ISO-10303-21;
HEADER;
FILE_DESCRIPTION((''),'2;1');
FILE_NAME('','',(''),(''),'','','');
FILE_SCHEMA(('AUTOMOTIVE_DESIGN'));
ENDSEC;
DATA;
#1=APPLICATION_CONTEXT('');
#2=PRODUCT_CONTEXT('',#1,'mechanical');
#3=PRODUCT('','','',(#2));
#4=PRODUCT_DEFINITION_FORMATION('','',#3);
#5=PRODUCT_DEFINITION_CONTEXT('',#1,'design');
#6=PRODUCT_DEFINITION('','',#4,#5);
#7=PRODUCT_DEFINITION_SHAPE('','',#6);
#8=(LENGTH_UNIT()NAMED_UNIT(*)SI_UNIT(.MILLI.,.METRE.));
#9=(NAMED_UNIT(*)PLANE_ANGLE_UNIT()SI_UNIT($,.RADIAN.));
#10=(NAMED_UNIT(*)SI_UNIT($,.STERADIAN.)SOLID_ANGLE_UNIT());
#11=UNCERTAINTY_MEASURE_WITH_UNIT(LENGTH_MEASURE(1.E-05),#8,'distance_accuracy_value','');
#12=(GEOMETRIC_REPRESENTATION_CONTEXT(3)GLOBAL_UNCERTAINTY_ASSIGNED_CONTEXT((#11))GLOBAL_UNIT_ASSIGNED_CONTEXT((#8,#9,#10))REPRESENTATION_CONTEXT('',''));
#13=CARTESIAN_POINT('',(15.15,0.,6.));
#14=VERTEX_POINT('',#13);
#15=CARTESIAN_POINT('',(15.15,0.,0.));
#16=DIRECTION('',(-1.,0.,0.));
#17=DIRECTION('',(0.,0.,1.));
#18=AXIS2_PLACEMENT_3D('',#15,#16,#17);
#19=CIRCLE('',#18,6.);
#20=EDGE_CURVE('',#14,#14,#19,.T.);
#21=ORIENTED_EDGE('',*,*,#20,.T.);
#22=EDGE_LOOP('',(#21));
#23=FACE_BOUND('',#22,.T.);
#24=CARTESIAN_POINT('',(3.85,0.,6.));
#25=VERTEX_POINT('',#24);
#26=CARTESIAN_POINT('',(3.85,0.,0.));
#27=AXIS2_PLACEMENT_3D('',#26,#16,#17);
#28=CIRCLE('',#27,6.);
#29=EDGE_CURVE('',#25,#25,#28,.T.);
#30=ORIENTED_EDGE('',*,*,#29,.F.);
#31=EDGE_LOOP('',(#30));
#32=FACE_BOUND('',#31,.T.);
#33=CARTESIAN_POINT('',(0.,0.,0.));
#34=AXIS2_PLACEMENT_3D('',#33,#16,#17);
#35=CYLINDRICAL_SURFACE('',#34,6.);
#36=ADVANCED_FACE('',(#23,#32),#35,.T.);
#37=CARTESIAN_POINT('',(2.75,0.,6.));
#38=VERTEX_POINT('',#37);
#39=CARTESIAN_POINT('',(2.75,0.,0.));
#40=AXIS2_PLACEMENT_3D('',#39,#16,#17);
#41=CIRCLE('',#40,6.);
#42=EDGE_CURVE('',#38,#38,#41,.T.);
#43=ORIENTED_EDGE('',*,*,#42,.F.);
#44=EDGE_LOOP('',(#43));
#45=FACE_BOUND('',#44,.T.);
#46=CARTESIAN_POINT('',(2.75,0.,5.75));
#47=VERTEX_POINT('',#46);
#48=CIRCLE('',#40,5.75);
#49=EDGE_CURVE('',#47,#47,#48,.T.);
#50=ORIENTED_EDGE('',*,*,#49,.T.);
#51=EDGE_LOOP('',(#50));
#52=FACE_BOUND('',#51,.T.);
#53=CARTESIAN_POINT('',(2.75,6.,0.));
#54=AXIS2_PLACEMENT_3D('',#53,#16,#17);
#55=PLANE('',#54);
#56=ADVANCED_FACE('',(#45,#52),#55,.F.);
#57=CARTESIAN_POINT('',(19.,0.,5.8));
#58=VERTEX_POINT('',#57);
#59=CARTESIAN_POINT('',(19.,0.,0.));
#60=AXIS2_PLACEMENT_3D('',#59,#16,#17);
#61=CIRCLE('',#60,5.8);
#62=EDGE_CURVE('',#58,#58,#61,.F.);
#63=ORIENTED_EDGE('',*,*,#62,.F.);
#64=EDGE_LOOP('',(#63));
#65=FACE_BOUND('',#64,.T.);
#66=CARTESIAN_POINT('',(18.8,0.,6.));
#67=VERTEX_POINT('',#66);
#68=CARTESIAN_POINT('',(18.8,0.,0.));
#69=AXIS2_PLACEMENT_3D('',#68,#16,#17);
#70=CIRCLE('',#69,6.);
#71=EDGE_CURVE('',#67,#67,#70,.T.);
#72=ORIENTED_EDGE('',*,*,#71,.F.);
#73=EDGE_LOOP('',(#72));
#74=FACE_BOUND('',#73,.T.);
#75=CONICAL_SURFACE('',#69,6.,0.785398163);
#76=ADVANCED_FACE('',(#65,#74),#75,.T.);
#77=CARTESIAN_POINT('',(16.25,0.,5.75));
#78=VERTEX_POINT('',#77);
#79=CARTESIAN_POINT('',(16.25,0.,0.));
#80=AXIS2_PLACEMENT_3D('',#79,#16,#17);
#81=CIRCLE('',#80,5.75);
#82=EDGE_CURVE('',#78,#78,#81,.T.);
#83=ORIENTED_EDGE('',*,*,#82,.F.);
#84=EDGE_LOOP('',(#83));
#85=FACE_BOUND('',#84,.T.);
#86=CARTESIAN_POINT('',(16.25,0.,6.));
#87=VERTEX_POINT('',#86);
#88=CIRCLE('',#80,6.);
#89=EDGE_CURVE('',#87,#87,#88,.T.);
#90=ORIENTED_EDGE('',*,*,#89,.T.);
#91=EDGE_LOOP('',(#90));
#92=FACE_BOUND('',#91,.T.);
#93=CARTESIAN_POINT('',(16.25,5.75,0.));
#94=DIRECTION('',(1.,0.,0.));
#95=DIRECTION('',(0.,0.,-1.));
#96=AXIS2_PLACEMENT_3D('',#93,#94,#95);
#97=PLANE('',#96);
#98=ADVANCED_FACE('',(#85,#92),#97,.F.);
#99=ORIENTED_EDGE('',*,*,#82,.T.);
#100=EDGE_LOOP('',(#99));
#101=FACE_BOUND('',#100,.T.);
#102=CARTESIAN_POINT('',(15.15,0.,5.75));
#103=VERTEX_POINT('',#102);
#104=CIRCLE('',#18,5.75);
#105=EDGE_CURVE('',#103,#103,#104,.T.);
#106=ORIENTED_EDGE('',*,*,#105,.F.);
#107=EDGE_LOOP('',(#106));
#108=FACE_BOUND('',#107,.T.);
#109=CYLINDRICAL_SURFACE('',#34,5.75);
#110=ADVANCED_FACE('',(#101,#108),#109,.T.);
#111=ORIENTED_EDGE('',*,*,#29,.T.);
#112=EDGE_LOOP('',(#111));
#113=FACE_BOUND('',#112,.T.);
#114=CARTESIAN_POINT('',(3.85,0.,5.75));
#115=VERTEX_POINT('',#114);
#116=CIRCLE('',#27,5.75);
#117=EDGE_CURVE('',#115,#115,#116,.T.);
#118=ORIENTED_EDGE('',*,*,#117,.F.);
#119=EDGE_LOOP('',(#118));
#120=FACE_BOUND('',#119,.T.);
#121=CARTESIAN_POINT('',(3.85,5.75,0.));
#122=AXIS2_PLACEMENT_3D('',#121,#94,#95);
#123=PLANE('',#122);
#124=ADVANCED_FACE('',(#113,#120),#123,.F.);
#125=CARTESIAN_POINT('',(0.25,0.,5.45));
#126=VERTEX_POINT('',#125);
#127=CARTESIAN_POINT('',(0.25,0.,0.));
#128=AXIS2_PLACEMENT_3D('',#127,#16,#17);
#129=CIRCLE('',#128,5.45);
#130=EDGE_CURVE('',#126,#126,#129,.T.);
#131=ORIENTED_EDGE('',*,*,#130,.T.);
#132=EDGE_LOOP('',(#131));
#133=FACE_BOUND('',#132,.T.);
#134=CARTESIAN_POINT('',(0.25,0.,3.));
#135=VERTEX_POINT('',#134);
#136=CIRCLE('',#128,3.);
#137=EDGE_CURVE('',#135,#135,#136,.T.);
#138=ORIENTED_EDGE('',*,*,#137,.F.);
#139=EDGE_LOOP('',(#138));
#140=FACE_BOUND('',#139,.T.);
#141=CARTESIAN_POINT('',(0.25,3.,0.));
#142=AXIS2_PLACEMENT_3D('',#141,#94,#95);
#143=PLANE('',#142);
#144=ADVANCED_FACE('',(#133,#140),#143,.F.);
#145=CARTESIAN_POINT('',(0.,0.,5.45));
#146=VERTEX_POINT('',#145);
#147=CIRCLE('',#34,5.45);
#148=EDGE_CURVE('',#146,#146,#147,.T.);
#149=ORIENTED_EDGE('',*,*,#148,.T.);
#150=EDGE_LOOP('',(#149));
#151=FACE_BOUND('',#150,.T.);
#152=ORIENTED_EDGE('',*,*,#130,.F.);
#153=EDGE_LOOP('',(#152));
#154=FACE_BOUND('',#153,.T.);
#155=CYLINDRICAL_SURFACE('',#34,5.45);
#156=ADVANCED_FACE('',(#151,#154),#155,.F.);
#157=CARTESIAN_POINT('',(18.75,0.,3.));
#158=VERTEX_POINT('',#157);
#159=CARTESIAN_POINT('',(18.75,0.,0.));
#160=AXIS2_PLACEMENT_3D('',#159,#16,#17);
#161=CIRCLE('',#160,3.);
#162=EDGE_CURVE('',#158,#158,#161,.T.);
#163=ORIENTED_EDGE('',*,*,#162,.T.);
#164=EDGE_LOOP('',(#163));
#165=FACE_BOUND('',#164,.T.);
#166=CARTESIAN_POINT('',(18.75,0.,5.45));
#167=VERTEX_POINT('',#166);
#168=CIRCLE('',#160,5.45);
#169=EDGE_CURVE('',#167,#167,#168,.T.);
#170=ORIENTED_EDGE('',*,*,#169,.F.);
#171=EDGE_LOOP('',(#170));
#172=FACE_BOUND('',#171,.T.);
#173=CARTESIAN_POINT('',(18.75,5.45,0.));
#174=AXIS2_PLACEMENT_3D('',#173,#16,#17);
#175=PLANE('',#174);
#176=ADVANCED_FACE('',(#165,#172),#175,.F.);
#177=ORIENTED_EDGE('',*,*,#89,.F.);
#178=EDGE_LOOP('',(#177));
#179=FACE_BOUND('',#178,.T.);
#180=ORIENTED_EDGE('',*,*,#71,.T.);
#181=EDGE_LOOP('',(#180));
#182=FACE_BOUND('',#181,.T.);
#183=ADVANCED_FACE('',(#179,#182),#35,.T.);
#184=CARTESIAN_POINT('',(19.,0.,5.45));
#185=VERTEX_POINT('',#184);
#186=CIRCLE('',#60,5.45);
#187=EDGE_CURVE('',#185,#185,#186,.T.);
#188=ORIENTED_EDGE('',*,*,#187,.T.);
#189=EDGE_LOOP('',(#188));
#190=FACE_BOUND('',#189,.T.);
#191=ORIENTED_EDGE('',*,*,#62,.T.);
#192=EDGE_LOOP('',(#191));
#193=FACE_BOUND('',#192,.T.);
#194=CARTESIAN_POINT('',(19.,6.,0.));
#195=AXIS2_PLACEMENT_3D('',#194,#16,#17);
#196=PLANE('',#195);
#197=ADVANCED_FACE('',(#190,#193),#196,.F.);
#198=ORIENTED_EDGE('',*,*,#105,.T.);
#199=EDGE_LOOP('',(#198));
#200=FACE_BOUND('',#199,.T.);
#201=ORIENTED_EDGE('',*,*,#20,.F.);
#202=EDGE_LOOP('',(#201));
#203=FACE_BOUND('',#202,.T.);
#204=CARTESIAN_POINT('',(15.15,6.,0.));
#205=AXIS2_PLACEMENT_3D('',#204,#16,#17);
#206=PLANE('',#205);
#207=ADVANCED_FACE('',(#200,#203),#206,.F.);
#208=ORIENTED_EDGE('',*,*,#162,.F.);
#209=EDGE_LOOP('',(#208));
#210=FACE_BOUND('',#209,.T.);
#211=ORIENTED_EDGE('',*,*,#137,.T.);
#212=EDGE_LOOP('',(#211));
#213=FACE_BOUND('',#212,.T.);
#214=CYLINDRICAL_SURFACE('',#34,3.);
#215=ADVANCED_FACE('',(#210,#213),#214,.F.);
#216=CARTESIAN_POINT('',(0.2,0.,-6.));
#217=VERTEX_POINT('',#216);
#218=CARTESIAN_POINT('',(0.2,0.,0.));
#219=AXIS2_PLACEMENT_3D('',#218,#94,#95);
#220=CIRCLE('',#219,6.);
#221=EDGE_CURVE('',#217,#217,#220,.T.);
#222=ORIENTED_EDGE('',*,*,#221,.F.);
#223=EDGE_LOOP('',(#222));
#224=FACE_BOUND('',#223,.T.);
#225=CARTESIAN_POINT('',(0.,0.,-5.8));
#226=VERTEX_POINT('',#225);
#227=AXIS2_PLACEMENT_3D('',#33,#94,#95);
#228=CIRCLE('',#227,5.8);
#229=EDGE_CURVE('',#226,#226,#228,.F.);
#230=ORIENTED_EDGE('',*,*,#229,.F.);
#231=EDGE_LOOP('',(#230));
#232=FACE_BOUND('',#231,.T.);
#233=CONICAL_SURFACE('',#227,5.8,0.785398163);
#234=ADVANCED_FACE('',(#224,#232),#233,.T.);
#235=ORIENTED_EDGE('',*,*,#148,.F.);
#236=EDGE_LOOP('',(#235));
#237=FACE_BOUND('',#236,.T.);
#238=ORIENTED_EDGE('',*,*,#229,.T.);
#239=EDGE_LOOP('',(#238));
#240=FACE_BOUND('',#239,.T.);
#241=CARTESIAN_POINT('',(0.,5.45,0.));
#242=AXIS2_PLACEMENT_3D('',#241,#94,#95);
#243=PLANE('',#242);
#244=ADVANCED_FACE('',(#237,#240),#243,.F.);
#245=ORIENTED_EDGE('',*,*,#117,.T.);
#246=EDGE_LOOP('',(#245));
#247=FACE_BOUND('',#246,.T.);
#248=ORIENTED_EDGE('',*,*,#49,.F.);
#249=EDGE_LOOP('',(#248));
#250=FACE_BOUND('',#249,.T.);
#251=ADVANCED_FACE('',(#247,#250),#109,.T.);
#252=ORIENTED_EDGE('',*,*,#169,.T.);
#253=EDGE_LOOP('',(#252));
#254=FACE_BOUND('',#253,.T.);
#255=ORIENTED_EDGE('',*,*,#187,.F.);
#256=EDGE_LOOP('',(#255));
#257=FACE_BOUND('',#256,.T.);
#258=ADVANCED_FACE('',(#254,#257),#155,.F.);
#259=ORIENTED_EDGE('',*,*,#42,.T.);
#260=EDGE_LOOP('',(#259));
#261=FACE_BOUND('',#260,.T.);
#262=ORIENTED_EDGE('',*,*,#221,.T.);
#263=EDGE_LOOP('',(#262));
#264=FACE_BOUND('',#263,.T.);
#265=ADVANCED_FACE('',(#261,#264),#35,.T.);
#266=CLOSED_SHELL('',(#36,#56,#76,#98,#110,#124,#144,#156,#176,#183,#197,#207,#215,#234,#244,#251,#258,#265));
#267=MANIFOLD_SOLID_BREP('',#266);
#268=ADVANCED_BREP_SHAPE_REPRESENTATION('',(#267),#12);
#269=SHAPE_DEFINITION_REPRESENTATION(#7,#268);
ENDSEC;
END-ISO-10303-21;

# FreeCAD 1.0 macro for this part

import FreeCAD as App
import Part
import Sketcher
from FreeCAD import Vector


def edges_at(feature, points):
    """Names of the edges that pass closest to the given points."""
    edges = feature.Shape.Edges
    near = lambda p: min(range(len(edges)), key=lambda i: edges[i].distToShape(Part.Vertex(*p))[0])
    return sorted({f"Edge{near(p) + 1}" for p in points})


def add_polygon(sketch, points):
    """Adds a closed chain of lines whose ends are joined by coincident constraints."""
    first, n = sketch.GeometryCount, len(points)
    for a, b in zip(points, points[1:] + points[:1]):
        sketch.addGeometry(Part.LineSegment(App.Vector(*a, 0), App.Vector(*b, 0)), False)
    for i in range(n):
        sketch.addConstraint(Sketcher.Constraint("Coincident", first + i, 2, first + (i + 1) % n, 1))

doc = App.newDocument("Part")
body = doc.addObject("PartDesign::Body", "Body")

sketch1 = doc.addObject("Sketcher::SketchObject", "Sketch")
body.addObject(sketch1)
sketch1.AttachmentSupport = (doc.XY_Plane, [""])
sketch1.MapMode = "FlatFace"
add_polygon(sketch1, [(0.25, 5.45), (0.25, 3), (18.75, 3), (18.75, 5.45), (19, 5.45), (19, 6), (16.25, 6), (16.25, 5.75), (15.15, 5.75), (15.15, 6), (3.85, 6), (3.85, 5.75), (2.75, 5.75), (2.75, 6), (0, 6), (0, 5.45)])
sketch1.addConstraint([
    Sketcher.Constraint("Vertical", 0),
    Sketcher.Constraint("Horizontal", 1),
    Sketcher.Constraint("Vertical", 2),
    Sketcher.Constraint("Horizontal", 3),
    Sketcher.Constraint("Vertical", 4),
    Sketcher.Constraint("Horizontal", 5),
    Sketcher.Constraint("Vertical", 6),
    Sketcher.Constraint("Horizontal", 7),
    Sketcher.Constraint("Vertical", 8),
    Sketcher.Constraint("Horizontal", 9),
    Sketcher.Constraint("Vertical", 10),
    Sketcher.Constraint("Horizontal", 11),
    Sketcher.Constraint("Vertical", 12),
    Sketcher.Constraint("Horizontal", 13),
    Sketcher.Constraint("Vertical", 14),
    Sketcher.Constraint("Horizontal", 15),
    Sketcher.Constraint("PointOnObject", 13, 2, -2),
    Sketcher.Constraint("Horizontal", 5, 2, 8, 2),
    Sketcher.Constraint("Horizontal", 7, 2, 10, 2),
    Sketcher.Constraint("Horizontal", 9, 2, 12, 2),
    Sketcher.Constraint("Horizontal", 3, 2, 14, 2),
    Sketcher.Constraint("Equal", 7, 11),
    Sketcher.Constraint("Equal", 5, 13),
    Sketcher.Constraint("Equal", 3, 15),
    Sketcher.Constraint("Equal", 15, 6),
    Sketcher.Constraint("DistanceX", 1, 1, 1, 2, 18.5),
    Sketcher.Constraint("DistanceX", 7, 2, 7, 1, 1.1),
    Sketcher.Constraint("DistanceX", 9, 2, 9, 1, 11.3),
    Sketcher.Constraint("DistanceY", -1, 1, 0, 2, 3.0),
    Sketcher.Constraint("DistanceX", -1, 1, 3, 2, 19.0),
    Sketcher.Constraint("DistanceY", -1, 1, 4, 2, 6.0),
    Sketcher.Constraint("DistanceY", 0, 2, 0, 1, 2.45),
])
revolution = doc.addObject("PartDesign::Revolution", "Revolution")
body.addObject(revolution)
revolution.Profile = sketch1
revolution.ReferenceAxis = (sketch1, ["H_Axis"])
revolution.Angle = 360
doc.recompute()

chamfer = doc.addObject("PartDesign::Chamfer", "Chamfer")
body.addObject(chamfer)
chamfer.Base = (revolution, edges_at(revolution, [(19, 0, -6), (0, 0, -6)]))
chamfer.Size = 0.2

doc.recompute()
